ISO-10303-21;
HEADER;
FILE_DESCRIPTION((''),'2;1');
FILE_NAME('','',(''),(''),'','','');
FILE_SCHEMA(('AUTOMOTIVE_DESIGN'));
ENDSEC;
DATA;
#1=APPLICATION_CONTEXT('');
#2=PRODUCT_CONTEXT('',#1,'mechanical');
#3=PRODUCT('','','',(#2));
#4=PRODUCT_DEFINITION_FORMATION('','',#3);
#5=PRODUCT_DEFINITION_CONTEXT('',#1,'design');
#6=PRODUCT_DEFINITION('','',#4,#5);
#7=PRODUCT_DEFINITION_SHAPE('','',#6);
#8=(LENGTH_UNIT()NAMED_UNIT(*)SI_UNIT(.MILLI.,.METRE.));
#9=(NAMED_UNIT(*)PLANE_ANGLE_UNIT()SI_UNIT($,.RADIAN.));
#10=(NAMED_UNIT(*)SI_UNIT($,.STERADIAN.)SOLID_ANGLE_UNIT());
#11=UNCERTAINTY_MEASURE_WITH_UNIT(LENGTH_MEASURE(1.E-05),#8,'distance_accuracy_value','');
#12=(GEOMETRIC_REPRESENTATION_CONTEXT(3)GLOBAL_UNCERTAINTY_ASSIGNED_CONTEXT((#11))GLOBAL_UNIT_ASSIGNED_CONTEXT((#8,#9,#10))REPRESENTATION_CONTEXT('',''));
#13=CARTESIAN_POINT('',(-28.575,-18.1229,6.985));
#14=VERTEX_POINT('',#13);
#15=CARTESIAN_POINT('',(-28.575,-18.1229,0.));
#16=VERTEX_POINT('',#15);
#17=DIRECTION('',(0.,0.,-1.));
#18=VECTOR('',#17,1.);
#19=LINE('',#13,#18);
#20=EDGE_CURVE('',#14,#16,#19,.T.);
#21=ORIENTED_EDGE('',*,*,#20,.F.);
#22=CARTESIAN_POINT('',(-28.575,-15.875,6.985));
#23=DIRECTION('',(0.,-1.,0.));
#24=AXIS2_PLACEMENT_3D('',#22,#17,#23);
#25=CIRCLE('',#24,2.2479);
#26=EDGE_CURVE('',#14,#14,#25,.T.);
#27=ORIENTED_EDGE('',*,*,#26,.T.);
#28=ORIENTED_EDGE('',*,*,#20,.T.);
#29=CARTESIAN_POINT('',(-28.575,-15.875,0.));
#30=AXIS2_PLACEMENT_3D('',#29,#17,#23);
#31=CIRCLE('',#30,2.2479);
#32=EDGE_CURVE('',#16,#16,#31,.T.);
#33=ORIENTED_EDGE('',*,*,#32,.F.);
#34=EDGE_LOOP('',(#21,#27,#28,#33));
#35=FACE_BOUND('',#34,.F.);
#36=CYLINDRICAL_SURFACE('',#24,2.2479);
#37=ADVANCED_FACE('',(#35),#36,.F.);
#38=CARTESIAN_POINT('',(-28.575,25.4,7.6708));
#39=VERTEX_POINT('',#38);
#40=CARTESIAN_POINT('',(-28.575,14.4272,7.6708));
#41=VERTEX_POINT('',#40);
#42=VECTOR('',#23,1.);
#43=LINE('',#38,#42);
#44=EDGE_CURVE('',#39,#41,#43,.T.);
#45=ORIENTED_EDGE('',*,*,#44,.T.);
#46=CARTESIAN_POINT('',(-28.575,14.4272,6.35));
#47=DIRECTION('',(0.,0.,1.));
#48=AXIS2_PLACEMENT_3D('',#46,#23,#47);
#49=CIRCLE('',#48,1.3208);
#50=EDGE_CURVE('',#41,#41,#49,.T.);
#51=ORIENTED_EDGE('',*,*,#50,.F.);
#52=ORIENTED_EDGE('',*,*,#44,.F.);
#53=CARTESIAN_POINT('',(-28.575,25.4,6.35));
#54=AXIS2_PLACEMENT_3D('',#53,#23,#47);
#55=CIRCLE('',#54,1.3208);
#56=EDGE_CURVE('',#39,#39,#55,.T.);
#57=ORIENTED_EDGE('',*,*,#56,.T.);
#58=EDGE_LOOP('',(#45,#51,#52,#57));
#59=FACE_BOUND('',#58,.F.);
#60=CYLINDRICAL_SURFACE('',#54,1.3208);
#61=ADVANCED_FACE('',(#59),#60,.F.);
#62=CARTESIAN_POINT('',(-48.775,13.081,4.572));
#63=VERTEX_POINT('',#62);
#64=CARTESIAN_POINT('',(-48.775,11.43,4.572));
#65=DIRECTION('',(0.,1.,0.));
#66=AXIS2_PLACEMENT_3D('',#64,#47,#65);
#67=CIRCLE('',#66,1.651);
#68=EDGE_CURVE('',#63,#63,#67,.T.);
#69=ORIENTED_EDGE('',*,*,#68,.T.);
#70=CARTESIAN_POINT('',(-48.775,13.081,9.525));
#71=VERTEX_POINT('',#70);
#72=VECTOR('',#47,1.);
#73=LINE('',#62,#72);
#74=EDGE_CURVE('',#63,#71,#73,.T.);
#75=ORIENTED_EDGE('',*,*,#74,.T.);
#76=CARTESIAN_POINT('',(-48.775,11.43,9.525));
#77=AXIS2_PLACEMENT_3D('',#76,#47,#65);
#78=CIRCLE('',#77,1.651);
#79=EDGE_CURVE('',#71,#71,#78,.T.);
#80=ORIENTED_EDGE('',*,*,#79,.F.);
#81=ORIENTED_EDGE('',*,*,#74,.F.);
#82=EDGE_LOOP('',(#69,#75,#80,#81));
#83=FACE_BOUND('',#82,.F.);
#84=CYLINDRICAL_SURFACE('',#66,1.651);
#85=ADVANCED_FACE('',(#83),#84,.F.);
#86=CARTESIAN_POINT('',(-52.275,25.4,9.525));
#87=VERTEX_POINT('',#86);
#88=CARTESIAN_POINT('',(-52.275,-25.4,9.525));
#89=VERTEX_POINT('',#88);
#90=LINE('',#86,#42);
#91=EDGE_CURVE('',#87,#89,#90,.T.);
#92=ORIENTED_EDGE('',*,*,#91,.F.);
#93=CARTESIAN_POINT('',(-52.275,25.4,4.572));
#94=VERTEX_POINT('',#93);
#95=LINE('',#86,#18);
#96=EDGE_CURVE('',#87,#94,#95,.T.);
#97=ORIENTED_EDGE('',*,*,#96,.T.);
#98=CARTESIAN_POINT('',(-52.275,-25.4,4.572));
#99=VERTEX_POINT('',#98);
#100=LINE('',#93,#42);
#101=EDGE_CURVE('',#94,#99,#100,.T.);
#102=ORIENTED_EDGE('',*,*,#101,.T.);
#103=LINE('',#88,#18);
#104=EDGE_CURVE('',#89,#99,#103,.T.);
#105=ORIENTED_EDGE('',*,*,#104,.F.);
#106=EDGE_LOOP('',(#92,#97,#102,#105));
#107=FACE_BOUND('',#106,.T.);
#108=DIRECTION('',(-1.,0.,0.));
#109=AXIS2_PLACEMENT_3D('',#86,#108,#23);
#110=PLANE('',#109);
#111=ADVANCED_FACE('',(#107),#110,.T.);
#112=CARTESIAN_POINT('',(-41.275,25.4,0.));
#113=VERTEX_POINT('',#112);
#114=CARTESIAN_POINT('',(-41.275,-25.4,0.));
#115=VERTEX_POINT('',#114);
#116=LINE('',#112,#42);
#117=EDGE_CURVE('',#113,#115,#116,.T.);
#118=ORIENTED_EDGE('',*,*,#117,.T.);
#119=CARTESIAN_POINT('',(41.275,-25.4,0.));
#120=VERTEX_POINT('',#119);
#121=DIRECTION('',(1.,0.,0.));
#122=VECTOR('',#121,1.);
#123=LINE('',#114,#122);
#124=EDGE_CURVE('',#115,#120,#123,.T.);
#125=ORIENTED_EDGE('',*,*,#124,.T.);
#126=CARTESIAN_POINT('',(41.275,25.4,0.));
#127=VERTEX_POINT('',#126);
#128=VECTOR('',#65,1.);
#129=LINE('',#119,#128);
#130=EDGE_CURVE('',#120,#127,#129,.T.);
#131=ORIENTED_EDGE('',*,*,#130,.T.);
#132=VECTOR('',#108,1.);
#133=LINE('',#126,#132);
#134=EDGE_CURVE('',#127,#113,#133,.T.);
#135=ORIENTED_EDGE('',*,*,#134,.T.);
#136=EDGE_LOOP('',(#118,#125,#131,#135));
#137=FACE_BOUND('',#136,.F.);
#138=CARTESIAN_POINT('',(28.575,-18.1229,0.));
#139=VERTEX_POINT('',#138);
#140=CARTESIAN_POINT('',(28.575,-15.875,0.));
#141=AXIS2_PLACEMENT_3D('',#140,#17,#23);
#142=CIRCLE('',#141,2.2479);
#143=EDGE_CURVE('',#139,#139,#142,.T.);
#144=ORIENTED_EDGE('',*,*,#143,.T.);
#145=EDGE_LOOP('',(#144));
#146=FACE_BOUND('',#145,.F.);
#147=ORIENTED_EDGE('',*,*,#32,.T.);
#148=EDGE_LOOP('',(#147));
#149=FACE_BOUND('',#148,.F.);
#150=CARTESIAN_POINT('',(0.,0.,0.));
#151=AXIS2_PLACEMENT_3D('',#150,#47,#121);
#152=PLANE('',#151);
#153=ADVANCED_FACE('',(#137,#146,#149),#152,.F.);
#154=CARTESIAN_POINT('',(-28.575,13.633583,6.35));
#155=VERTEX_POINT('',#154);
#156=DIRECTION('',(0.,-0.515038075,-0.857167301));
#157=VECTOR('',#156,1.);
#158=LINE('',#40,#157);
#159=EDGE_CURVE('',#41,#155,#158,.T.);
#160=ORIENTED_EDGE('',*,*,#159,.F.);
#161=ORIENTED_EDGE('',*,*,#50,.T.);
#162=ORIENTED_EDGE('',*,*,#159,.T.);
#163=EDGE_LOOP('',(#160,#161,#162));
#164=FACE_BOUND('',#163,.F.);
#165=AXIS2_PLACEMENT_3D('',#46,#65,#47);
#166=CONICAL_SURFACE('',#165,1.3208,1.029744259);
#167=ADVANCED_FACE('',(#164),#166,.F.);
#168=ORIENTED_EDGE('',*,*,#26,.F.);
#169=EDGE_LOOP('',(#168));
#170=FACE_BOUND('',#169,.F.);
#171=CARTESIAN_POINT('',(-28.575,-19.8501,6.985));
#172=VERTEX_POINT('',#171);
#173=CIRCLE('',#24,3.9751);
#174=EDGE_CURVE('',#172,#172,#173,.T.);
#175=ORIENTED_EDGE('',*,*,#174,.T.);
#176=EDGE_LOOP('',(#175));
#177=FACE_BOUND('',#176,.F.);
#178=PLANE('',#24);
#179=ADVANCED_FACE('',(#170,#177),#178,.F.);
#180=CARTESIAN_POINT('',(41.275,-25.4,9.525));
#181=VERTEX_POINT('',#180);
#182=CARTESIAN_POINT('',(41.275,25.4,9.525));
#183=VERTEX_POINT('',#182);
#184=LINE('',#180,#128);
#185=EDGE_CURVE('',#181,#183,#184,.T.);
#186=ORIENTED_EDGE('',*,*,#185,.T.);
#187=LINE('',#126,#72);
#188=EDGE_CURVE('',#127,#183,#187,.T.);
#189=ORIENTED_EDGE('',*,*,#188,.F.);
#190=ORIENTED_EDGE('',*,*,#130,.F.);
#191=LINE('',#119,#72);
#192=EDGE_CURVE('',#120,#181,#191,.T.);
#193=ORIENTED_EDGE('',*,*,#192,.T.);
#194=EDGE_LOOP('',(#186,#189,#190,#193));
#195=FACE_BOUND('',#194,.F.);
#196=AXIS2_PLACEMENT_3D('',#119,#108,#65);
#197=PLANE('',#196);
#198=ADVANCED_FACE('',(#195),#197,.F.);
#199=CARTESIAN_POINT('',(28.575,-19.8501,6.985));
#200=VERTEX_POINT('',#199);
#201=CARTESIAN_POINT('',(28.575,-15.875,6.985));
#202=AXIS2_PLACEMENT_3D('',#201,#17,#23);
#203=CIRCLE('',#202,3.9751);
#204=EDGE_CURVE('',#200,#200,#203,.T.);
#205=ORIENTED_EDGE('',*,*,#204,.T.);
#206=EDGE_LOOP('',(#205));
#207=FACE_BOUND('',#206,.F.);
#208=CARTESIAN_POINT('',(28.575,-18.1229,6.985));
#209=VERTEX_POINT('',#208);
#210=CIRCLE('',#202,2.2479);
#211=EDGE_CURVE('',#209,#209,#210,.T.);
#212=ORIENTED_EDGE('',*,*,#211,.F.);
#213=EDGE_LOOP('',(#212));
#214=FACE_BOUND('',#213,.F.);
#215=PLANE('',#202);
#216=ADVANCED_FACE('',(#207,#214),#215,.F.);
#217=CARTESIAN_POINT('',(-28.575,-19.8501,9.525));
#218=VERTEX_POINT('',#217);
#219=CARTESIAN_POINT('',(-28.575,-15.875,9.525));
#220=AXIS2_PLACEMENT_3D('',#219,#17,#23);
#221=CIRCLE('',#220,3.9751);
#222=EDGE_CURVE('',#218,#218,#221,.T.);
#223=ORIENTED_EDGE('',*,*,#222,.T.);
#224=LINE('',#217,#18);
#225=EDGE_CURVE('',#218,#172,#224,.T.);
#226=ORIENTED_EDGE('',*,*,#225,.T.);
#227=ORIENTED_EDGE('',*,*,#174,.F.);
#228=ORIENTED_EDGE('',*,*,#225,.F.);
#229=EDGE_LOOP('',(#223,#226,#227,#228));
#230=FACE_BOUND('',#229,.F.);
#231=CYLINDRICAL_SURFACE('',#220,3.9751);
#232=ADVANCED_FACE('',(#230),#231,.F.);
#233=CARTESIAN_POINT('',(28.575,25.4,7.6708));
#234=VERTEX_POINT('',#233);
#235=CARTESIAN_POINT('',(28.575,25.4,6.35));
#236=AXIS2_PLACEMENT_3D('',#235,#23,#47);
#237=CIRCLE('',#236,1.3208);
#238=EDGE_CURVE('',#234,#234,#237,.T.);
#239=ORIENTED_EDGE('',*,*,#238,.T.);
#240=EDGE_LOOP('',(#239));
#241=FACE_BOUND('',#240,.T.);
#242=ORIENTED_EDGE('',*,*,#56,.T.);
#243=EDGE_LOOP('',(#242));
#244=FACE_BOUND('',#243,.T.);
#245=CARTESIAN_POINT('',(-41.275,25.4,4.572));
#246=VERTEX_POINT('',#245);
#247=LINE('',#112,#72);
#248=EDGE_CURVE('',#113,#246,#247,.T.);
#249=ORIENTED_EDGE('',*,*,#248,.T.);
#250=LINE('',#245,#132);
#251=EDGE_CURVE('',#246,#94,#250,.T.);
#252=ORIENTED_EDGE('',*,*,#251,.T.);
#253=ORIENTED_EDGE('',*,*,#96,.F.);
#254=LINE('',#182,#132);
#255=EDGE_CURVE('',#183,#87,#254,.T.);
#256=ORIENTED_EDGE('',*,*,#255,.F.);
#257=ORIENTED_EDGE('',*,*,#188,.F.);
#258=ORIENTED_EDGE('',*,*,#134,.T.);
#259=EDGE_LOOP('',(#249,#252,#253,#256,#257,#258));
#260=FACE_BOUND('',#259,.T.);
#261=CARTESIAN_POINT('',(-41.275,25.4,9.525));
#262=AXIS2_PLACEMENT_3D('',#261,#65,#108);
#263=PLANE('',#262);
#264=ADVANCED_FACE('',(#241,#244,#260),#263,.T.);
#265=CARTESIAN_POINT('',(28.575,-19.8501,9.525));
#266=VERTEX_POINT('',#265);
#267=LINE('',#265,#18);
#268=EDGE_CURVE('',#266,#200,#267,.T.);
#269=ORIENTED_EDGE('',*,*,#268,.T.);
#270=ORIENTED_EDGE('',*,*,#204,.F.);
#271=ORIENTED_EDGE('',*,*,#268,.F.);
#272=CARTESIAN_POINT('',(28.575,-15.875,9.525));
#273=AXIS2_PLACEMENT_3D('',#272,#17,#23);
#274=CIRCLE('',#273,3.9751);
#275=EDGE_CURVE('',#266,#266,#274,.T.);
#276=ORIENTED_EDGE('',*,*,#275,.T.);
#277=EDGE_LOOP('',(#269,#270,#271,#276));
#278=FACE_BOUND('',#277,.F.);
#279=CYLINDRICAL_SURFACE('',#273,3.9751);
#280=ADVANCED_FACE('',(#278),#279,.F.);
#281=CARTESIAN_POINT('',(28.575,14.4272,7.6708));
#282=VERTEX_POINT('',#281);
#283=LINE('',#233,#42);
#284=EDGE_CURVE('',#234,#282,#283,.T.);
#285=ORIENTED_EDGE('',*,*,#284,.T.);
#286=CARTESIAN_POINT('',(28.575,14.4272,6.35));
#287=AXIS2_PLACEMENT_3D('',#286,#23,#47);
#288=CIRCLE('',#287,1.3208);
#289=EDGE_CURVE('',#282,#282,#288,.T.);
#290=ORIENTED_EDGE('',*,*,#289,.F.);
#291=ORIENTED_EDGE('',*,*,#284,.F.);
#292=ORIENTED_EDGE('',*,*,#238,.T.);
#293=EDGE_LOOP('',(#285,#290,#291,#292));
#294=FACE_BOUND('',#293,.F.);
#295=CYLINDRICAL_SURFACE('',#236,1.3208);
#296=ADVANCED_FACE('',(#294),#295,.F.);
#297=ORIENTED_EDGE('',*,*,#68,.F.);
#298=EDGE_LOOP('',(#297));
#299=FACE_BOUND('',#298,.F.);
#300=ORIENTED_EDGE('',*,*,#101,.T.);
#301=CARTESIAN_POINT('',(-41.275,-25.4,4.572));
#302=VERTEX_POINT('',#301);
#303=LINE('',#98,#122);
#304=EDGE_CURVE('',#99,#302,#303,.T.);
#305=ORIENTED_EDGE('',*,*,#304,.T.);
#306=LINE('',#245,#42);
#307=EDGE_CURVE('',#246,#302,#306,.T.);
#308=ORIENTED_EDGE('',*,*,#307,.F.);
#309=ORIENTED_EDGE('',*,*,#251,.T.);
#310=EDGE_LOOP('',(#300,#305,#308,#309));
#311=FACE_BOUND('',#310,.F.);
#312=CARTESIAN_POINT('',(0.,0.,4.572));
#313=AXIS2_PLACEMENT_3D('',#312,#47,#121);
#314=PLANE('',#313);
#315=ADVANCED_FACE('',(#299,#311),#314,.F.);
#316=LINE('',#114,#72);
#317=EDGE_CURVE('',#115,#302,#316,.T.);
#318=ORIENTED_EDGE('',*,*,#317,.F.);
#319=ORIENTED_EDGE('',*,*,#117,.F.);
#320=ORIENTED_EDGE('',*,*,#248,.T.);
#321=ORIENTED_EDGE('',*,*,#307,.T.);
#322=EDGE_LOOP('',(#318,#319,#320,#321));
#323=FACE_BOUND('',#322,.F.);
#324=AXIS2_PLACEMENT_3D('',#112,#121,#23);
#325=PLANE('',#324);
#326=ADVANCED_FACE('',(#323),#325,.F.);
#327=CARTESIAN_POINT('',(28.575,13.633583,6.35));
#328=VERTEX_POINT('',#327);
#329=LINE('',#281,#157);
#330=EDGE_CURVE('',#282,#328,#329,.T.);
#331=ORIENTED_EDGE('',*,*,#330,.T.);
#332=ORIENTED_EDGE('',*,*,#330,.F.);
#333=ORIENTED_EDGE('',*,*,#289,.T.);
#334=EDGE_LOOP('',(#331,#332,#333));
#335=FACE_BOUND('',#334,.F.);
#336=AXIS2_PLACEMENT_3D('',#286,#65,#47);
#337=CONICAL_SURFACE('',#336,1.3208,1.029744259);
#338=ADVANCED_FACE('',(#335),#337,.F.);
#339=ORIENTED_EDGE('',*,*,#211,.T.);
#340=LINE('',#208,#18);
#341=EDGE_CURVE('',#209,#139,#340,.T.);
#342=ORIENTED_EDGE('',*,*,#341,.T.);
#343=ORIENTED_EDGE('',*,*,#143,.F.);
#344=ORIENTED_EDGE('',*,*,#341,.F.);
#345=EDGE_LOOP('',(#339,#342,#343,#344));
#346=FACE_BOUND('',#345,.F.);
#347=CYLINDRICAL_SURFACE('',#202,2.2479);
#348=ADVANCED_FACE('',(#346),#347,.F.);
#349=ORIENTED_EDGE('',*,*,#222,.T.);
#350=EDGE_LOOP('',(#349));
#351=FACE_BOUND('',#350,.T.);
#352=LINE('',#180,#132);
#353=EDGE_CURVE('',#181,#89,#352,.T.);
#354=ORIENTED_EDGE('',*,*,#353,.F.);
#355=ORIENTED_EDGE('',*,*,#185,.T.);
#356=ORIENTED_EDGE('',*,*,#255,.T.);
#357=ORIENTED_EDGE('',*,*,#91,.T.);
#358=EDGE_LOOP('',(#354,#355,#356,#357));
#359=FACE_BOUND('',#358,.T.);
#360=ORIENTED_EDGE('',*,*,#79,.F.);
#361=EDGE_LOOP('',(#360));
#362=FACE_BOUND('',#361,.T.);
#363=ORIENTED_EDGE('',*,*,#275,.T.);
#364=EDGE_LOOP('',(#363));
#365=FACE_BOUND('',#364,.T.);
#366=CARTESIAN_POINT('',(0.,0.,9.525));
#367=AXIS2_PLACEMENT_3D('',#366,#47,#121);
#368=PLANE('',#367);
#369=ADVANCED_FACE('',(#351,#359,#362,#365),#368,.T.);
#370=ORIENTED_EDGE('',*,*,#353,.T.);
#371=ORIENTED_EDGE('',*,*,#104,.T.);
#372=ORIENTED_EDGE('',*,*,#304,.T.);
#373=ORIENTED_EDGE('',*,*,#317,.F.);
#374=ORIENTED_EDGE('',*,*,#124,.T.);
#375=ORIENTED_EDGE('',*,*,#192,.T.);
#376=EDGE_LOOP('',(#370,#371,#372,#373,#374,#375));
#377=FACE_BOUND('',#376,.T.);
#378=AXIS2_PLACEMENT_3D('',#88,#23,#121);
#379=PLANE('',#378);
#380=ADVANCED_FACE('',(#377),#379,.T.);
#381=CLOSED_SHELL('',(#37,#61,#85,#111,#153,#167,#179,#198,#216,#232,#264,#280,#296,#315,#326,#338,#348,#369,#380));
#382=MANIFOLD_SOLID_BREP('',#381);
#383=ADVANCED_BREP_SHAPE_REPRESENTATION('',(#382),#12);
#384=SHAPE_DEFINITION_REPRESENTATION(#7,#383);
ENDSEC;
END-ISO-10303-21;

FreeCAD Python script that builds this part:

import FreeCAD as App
import Part
import Sketcher
Q = App.Units.Quantity


def add_polygon(sketch, points):
    """Adds a closed chain of lines whose ends are joined by coincident constraints."""
    first, n = sketch.GeometryCount, len(points)
    for a, b in zip(points, points[1:] + points[:1]):
        sketch.addGeometry(Part.LineSegment(App.Vector(*a, 0), App.Vector(*b, 0)), False)
    for i in range(n):
        sketch.addConstraint(Sketcher.Constraint("Coincident", first + i, 2, first + (i + 1) % n, 1))

doc = App.newDocument("Part")
body = doc.addObject("PartDesign::Body", "Body")

sketch1 = doc.addObject("Sketcher::SketchObject", "Sketch")
body.addObject(sketch1)
sketch1.AttachmentSupport = (doc.XY_Plane, [""])
sketch1.MapMode = "FlatFace"
add_polygon(sketch1, [(-41, 25), (-41, -25), (41, -25), (41, 25)])
sketch1.addConstraint(Sketcher.Constraint("Vertical", 0))
sketch1.addConstraint(Sketcher.Constraint("Horizontal", 1))
sketch1.addConstraint(Sketcher.Constraint("Vertical", 2))
sketch1.addConstraint(Sketcher.Constraint("Horizontal", 3))
sketch1.addConstraint(Sketcher.Constraint("Symmetric", 0, 2, 2, 2, -1, 1))
sketch1.addConstraint(Sketcher.Constraint("DistanceY", 0, 2, 0, 1, Q("2 in")))
sketch1.addConstraint(Sketcher.Constraint("DistanceX", 1, 1, 1, 2, Q("3.25 in")))
pad1 = doc.addObject("PartDesign::Pad", "Pad")
body.addObject(pad1)
pad1.Profile = sketch1
pad1.Length = Q("0.375 in")

sketch2 = doc.addObject("Sketcher::SketchObject", "Sketch001")
body.addObject(sketch2)
sketch2.AttachmentSupport = (doc.XY_Plane, [""])
sketch2.MapMode = "FlatFace"
sketch2.AttachmentOffset = App.Placement(App.Vector(0, 0, 0.375 * 25.4), App.Rotation())
sketch2.addGeometry(Part.Circle(App.Vector(-28.6, -15.9, 0), App.Vector(0, 0, 1), 2.2), False)
sketch2.addGeometry(Part.Circle(App.Vector(28.6, -15.9, 0), App.Vector(0, 0, 1), 2.2), False)
sketch2.addConstraint(Sketcher.Constraint("Equal", 0, 1))
sketch2.addConstraint(Sketcher.Constraint("Symmetric", 0, 3, 1, 3, -2))
sketch2.addConstraint(Sketcher.Constraint("Diameter", 0, Q("0.177 in")))
sketch2.addConstraint(Sketcher.Constraint("DistanceX", 0, 3, 1, 3, Q("2.25 in")))
sketch2.addConstraint(Sketcher.Constraint("DistanceY", 0, 3, -1, 1, Q("0.625 in")))
doc.recompute()
hole = doc.addObject("PartDesign::Hole", "Hole")
body.addObject(hole)
hole.Profile = sketch2
hole.ThreadType = "None"
hole.Diameter = Q("0.177 in")
hole.DepthType = "Dimension"
hole.Depth = Q("1 in")
hole.DrillPoint = "Angled"
hole.DrillPointAngle = 118
hole.HoleCutType = "Counterbore"
hole.HoleCutDiameter = Q("0.313 in")
hole.HoleCutDepth = Q("0.1 in")

sketch3 = doc.addObject("Sketcher::SketchObject", "Sketch002")
body.addObject(sketch3)
sketch3.AttachmentSupport = (doc.XY_Plane, [""])
sketch3.MapMode = "FlatFace"
sketch3.AttachmentOffset = App.Placement(App.Vector(0, 0, 0.375 * 25.4), App.Rotation())
add_polygon(sketch3, [(-41, -25), (-41, 25), (-52, 25), (-52, -25)])
sketch3.addConstraint(Sketcher.Constraint("Vertical", 0))
sketch3.addConstraint(Sketcher.Constraint("Horizontal", 1))
sketch3.addConstraint(Sketcher.Constraint("Vertical", 2))
sketch3.addConstraint(Sketcher.Constraint("Horizontal", 3))
sketch3.addConstraint(Sketcher.Constraint("DistanceY", 0, 1, 0, 2, Q("2 in")))
sketch3.addConstraint(Sketcher.Constraint("DistanceY", -1, 1, 0, 2, Q("1 in")))
sketch3.addConstraint(Sketcher.Constraint("DistanceX", 1, 2, 1, 1, 11.0))
sketch3.addConstraint(Sketcher.Constraint("DistanceX", 0, 2, -1, 1, Q("1.625 in")))
pad2 = doc.addObject("PartDesign::Pad", "Pad001")
body.addObject(pad2)
pad2.Profile = sketch3
pad2.Length = Q("0.195 in")
pad2.Reversed = True

sketch4 = doc.addObject("Sketcher::SketchObject", "Sketch003")
body.addObject(sketch4)
sketch4.AttachmentSupport = (doc.XY_Plane, [""])
sketch4.MapMode = "FlatFace"
sketch4.AttachmentOffset = App.Placement(App.Vector(0, 0, 0.18 * 25.4), App.Rotation())
sketch4.addGeometry(Part.Circle(App.Vector(-48.8, 11.4, 0), App.Vector(0, 0, 1), 1.7), False)
sketch4.addConstraint(Sketcher.Constraint("Diameter", 0, Q("0.13 in")))
sketch4.addConstraint(Sketcher.Constraint("DistanceY", -1, 1, 0, 3, Q("0.45 in")))
sketch4.addConstraint(Sketcher.Constraint("DistanceX", 0, 3, -1, 1, 48.775))
doc.recompute()
hole2 = doc.addObject("PartDesign::Hole", "Hole001")
body.addObject(hole2)
hole2.Profile = sketch4
hole2.ThreadType = "None"
hole2.Diameter = Q("0.13 in")
hole2.DepthType = "Dimension"
hole2.Depth = Q("0.484 in")
hole2.DrillPoint = "Angled"
hole2.DrillPointAngle = 118
hole2.Reversed = True

sketch5 = doc.addObject("Sketcher::SketchObject", "Sketch004")
body.addObject(sketch5)
sketch5.AttachmentSupport = (doc.XZ_Plane, [""])
sketch5.MapMode = "FlatFace"
sketch5.AttachmentOffset = App.Placement(App.Vector(0, 0, -1 * 25.4), App.Rotation())
sketch5.addGeometry(Part.Circle(App.Vector(-28.6, 6.3, 0), App.Vector(0, 0, 1), 1.3), False)
sketch5.addGeometry(Part.Circle(App.Vector(28.6, 6.3, 0), App.Vector(0, 0, 1), 1.3), False)
sketch5.addConstraint(Sketcher.Constraint("Equal", 0, 1))
sketch5.addConstraint(Sketcher.Constraint("Symmetric", 0, 3, 1, 3, -2))
sketch5.addConstraint(Sketcher.Constraint("Diameter", 0, Q("0.104 in")))
sketch5.addConstraint(Sketcher.Constraint("DistanceY", -1, 1, 0, 3, Q("0.25 in")))
sketch5.addConstraint(Sketcher.Constraint("DistanceX", 0, 3, 1, 3, Q("2.25 in")))
doc.recompute()
hole3 = doc.addObject("PartDesign::Hole", "Hole002")
body.addObject(hole3)
hole3.Profile = sketch5
hole3.ThreadType = "None"
hole3.Diameter = Q("0.104 in")
hole3.DepthType = "Dimension"
hole3.Depth = Q("0.432 in")
hole3.DrillPoint = "Angled"
hole3.DrillPointAngle = 118
hole3.Reversed = True

doc.recompute()
